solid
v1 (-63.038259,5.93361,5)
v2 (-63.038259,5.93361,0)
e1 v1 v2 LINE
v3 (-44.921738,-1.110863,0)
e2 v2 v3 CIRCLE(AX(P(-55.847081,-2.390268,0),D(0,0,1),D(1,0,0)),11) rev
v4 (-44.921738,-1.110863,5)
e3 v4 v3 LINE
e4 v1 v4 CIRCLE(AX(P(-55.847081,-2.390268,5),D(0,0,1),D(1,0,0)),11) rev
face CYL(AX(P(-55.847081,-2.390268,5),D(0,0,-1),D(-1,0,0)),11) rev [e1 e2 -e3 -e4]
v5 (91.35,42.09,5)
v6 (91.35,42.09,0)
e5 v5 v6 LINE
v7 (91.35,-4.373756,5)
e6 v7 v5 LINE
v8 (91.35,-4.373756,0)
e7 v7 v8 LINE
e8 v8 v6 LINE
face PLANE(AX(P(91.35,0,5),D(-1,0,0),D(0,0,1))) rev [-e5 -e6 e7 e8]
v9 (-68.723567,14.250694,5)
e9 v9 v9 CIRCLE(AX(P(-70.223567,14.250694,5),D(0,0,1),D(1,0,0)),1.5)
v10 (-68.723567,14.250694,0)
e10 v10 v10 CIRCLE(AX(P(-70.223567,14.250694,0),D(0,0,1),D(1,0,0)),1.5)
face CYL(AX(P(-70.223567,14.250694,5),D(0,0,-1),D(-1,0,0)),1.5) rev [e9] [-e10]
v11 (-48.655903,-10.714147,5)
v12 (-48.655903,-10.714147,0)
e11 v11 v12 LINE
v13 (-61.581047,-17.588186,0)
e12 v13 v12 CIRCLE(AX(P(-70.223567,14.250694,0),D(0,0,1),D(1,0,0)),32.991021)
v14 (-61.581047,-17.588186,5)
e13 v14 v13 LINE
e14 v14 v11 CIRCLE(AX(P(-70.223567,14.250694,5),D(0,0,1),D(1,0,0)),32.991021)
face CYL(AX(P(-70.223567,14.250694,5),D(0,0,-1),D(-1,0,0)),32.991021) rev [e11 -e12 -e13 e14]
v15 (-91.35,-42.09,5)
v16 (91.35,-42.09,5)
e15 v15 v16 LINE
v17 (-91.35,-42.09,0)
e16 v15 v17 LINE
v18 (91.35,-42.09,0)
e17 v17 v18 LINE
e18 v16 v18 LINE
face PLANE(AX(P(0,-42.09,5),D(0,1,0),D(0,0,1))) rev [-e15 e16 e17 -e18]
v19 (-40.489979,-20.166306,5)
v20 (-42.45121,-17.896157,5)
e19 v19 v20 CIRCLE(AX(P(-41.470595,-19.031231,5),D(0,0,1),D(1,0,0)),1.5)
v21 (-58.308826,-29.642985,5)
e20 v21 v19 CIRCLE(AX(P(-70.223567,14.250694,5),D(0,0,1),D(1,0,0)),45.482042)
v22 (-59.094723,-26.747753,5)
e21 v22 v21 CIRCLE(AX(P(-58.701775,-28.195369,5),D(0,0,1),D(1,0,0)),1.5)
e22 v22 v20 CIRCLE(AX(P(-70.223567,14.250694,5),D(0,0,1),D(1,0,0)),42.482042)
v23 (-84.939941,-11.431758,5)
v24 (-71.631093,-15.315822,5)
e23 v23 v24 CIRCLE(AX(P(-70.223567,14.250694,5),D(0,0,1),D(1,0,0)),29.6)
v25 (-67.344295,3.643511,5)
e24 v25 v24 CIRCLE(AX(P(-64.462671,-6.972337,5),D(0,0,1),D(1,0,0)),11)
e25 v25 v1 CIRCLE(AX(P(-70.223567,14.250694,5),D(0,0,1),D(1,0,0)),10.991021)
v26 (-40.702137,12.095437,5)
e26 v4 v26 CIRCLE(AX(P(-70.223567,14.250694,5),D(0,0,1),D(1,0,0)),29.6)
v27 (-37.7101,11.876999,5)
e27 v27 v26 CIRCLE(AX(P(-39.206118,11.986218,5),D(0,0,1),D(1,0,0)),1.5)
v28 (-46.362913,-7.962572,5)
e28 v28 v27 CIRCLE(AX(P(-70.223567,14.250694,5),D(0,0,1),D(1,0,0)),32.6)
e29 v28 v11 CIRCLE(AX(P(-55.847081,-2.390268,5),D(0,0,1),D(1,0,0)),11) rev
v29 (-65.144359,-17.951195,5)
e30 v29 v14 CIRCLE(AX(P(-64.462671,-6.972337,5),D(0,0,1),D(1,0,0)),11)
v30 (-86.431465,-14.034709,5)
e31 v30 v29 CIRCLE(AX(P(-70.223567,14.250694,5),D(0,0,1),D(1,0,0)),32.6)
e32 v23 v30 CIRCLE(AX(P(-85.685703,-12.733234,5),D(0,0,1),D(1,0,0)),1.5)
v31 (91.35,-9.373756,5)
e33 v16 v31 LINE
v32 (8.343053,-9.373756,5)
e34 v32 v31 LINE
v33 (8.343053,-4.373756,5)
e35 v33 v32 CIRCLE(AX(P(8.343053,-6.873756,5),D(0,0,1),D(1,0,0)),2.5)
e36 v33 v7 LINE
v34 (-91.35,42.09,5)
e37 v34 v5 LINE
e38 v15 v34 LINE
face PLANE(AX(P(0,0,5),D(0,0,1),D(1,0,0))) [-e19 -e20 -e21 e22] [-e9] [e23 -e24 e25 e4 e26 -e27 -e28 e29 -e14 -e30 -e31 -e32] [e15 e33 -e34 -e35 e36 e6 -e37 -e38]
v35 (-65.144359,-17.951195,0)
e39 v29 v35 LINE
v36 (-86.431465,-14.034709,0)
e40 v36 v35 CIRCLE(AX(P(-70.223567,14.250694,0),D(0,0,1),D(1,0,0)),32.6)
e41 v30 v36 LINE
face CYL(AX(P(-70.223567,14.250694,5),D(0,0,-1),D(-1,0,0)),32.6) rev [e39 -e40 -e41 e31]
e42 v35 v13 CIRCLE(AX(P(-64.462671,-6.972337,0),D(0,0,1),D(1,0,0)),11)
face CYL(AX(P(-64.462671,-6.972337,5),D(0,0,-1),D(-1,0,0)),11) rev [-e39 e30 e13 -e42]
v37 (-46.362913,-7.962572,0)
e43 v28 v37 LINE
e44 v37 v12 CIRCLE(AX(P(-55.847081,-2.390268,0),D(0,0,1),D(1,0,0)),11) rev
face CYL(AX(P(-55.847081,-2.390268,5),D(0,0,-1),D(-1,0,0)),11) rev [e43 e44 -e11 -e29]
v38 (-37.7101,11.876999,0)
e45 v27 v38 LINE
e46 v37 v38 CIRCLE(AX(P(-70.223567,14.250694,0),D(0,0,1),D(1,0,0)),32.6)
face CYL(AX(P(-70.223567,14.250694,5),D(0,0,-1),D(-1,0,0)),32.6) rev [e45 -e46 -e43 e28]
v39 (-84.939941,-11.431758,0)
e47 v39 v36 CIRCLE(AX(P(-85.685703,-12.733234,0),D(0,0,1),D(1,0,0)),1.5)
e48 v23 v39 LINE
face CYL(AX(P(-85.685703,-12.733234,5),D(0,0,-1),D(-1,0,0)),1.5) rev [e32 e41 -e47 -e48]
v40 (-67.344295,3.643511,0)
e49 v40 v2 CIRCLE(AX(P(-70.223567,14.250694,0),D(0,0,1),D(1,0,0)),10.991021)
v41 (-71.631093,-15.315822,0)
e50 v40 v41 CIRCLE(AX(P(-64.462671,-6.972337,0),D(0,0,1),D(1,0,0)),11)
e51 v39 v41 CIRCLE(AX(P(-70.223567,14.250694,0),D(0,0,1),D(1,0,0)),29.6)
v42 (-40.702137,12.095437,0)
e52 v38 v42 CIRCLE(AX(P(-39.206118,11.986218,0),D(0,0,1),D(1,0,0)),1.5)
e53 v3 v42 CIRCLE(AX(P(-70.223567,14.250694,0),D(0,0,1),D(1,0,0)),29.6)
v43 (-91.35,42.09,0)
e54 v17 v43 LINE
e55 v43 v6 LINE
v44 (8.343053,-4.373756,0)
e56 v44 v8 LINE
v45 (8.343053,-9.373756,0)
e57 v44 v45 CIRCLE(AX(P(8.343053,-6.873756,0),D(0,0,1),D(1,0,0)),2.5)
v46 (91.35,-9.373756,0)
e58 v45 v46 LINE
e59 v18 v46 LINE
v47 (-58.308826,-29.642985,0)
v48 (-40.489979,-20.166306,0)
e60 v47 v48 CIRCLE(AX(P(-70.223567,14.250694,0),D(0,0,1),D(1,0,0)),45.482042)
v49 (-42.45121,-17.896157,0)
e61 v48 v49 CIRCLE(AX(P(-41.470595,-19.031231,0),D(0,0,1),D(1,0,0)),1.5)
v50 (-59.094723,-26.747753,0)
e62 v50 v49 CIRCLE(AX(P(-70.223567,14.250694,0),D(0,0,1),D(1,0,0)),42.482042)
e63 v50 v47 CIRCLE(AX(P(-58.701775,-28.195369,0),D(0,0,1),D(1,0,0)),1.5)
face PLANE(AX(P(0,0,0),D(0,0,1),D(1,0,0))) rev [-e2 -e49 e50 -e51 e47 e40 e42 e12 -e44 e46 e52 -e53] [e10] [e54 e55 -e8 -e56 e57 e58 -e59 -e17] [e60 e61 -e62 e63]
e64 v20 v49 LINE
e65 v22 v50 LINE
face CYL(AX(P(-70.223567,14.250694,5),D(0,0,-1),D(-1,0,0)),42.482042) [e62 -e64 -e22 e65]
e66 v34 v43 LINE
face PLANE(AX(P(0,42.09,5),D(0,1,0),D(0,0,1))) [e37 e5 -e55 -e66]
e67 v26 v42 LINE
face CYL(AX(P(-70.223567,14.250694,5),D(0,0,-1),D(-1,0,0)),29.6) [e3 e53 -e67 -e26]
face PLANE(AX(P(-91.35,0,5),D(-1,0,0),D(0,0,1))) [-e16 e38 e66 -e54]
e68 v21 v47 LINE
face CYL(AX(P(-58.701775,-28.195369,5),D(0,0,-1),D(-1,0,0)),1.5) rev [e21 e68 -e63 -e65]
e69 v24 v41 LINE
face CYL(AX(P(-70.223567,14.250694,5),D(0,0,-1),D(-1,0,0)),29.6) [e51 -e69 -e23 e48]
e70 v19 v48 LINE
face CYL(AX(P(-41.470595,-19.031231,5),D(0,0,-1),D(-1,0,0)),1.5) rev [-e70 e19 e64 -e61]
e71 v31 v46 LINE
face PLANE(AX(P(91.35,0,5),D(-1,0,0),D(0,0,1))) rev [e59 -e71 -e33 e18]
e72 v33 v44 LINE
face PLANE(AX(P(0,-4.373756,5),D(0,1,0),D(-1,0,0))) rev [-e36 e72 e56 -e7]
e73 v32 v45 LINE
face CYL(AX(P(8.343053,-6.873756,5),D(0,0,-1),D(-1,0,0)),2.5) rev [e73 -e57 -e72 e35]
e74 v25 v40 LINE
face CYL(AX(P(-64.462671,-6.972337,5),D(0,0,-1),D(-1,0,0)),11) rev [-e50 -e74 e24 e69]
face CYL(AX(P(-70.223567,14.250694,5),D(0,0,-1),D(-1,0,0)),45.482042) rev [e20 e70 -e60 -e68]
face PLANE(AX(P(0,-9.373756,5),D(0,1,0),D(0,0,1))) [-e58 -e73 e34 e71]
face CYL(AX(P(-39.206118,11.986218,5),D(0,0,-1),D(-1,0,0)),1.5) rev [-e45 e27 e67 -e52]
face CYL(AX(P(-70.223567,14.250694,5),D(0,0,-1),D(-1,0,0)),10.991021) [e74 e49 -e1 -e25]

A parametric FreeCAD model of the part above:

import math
import FreeCAD as App
import Part
import Sketcher
from FreeCAD import Vector

doc = App.newDocument("Part")
body = doc.addObject("PartDesign::Body", "Body")

# Sketch on XY plane
sketch1 = body.newObject("Sketcher::SketchObject", "Sketch")
sketch1.AttachmentSupport = (doc.getObject("XY_Plane"), [""])
sketch1.MapMode = "FlatFace"
sketch1.addGeometry([
    Part.LineSegment(Vector(-91.35, 42.09, 0), Vector(-91.35, -42.09, 0)),  # 0
    Part.LineSegment(Vector(-91.35, -42.09, 0), Vector(91.35, -42.09, 0)),  # 1
    Part.LineSegment(Vector(91.35, -42.09, 0), Vector(91.35, -9.37, 0)),  # 2
    Part.LineSegment(Vector(91.35, -9.37, 0), Vector(8.34, -9.37, 0)),  # 3
    Part.ArcOfCircle(Part.Circle(Vector(8.34, -6.87, 0), Vector(0, 0, 1), 2.5), math.radians(90), math.radians(270)),  # 4
    Part.LineSegment(Vector(8.34, -4.37, 0), Vector(91.35, -4.37, 0)),  # 5
    Part.LineSegment(Vector(91.35, -4.37, 0), Vector(91.35, 42.09, 0)),  # 6
    Part.LineSegment(Vector(91.35, 42.09, 0), Vector(-91.35, 42.09, 0)),  # 7
    Part.ArcOfCircle(Part.Circle(Vector(-41.47, -19.03, 0), Vector(0, 0, 1), 1.5), math.radians(-49), math.radians(0)),  # 8
    Part.ArcOfCircle(Part.Circle(Vector(-70.22, 14.25, 0), Vector(0, 0, 1), 45.48), math.radians(-75), math.radians(-49)),  # 9
    Part.ArcOfCircle(Part.Circle(Vector(-58.7, -28.2, 0), Vector(0, 0, 1), 1.5), math.radians(105), math.radians(285)),  # 10
    Part.ArcOfCircle(Part.Circle(Vector(-70.22, 14.25, 0), Vector(0, 0, 1), 42.48), math.radians(-75), math.radians(-49)),  # 11
    Part.ArcOfCircle(Part.Circle(Vector(-41.47, -19.03, 0), Vector(0, 0, 1), 1.5), math.radians(0), math.radians(131)),  # 12
    Part.Circle(Vector(-70.22, 14.25, 0), Vector(0, 0, 1), 1.5),  # 13
    Part.ArcOfCircle(Part.Circle(Vector(-64.46, -6.97, 0), Vector(0, 0, 1), 11), math.radians(-93.55), math.radians(-74.81)),  # 14
    Part.ArcOfCircle(Part.Circle(Vector(-70.22, 14.25, 0), Vector(0, 0, 1), 32.6), math.radians(-120), math.radians(-81)),  # 15
    Part.ArcOfCircle(Part.Circle(Vector(-85.69, -12.73, 0), Vector(0, 0, 1), 1.5), math.radians(60), math.radians(240)),  # 16
    Part.ArcOfCircle(Part.Circle(Vector(-70.22, 14.25, 0), Vector(0, 0, 1), 29.6), math.radians(-120), math.radians(-93)),  # 17
    Part.ArcOfCircle(Part.Circle(Vector(-64.46, -6.97, 0), Vector(0, 0, 1), 11), math.radians(105), math.radians(229)),  # 18
    Part.ArcOfCircle(Part.Circle(Vector(-70.22, 14.25, 0), Vector(0, 0, 1), 10.99), math.radians(-75), math.radians(-49)),  # 19
    Part.ArcOfCircle(Part.Circle(Vector(-55.85, -2.39, 0), Vector(0, 0, 1), 11), math.radians(7), math.radians(131)),  # 20
    Part.ArcOfCircle(Part.Circle(Vector(-70.22, 14.25, 0), Vector(0, 0, 1), 29.6), math.radians(-31), math.radians(-4)),  # 21
    Part.ArcOfCircle(Part.Circle(Vector(-39.21, 11.99, 0), Vector(0, 0, 1), 1.5), math.radians(0), math.radians(176)),  # 22
    Part.ArcOfCircle(Part.Circle(Vector(-39.21, 11.99, 0), Vector(0, 0, 1), 1.5), math.radians(-4.18), math.radians(0)),  # 23
    Part.ArcOfCircle(Part.Circle(Vector(-70.22, 14.25, 0), Vector(0, 0, 1), 32.6), math.radians(-43), math.radians(-4)),  # 24
    Part.ArcOfCircle(Part.Circle(Vector(-55.85, -2.39, 0), Vector(0, 0, 1), 11), math.radians(-49.18), math.radians(-30.44)),  # 25
    Part.ArcOfCircle(Part.Circle(Vector(-70.22, 14.25, 0), Vector(0, 0, 1), 32.99), math.radians(-75), math.radians(-49)),  # 26
], False)
sketch1.addConstraint([
    Sketcher.Constraint("Coincident", 0, 2, 1, 1),
    Sketcher.Constraint("Coincident", 1, 2, 2, 1),
    Sketcher.Constraint("Coincident", 2, 2, 3, 1),
    Sketcher.Constraint("Tangent", 3, 2, 4, 2),
    Sketcher.Constraint("Tangent", 4, 1, 5, 1),
    Sketcher.Constraint("Coincident", 5, 2, 6, 1),
    Sketcher.Constraint("Coincident", 6, 2, 7, 1),
    Sketcher.Constraint("Coincident", 7, 2, 0, 1),
    Sketcher.Constraint("Tangent", 8, 1, 9, 2),
    Sketcher.Constraint("Tangent", 9, 1, 10, 2),
    Sketcher.Constraint("Tangent", 10, 1, 11, 1),
    Sketcher.Constraint("Tangent", 11, 2, 12, 2),
    Sketcher.Constraint("Tangent", 12, 1, 8, 2),
    Sketcher.Constraint("Coincident", 14, 1, 15, 2),
    Sketcher.Constraint("Tangent", 15, 1, 16, 2),
    Sketcher.Constraint("Tangent", 16, 1, 17, 1),
    Sketcher.Constraint("Coincident", 17, 2, 18, 2),
    Sketcher.Constraint("Tangent", 18, 1, 19, 1),
    Sketcher.Constraint("Tangent", 19, 2, 20, 2),
    Sketcher.Constraint("Coincident", 20, 1, 21, 1),
    Sketcher.Constraint("Tangent", 21, 2, 22, 2),
    Sketcher.Constraint("Tangent", 22, 1, 23, 2),
    Sketcher.Constraint("Tangent", 23, 1, 24, 2),
    Sketcher.Constraint("Coincident", 24, 1, 25, 2),
    Sketcher.Constraint("Tangent", 25, 1, 26, 2),
    Sketcher.Constraint("Tangent", 26, 1, 14, 2),
    Sketcher.Constraint("Vertical", 0),
    Sketcher.Constraint("Horizontal", 1),
    Sketcher.Constraint("Vertical", 2),
    Sketcher.Constraint("Horizontal", 3),
    Sketcher.Constraint("Horizontal", 5),
    Sketcher.Constraint("Vertical", 6),
    Sketcher.Constraint("Horizontal", 7),
    Sketcher.Constraint("Coincident", 11, 3, 9, 3),
    Sketcher.Constraint("Coincident", 13, 3, 9, 3),
    Sketcher.Constraint("Coincident", 15, 3, 9, 3),
    Sketcher.Constraint("Coincident", 17, 3, 9, 3),
    Sketcher.Constraint("Coincident", 18, 3, 14, 3),
    Sketcher.Constraint("Coincident", 19, 3, 9, 3),
    Sketcher.Constraint("Coincident", 21, 3, 9, 3),
    Sketcher.Constraint("Coincident", 24, 3, 9, 3),
    Sketcher.Constraint("Coincident", 25, 3, 20, 3),
    Sketcher.Constraint("Coincident", 26, 3, 9, 3),
    Sketcher.Constraint("Equal", 8, 10),
    Sketcher.Constraint("Equal", 12, 13),
    Sketcher.Constraint("Equal", 13, 16),
    Sketcher.Constraint("Equal", 14, 18),
    Sketcher.Constraint("Equal", 18, 20),
    Sketcher.Constraint("Equal", 17, 21),
    Sketcher.Constraint("Equal", 16, 22),
    Sketcher.Constraint("Equal", 22, 23),
    Sketcher.Constraint("Symmetric", 0, 2, 6, 2, -1, 1),
    Sketcher.Constraint("Horizontal", 8, 3, 12, 1),
    Sketcher.Constraint("Horizontal", 23, 3, 22, 1),
    Sketcher.Constraint("Vertical", 2, 2, 5, 2),
    Sketcher.Constraint("Diameter", 13, 3.0),
    Sketcher.Constraint("Radius", 14, 11.0),
    Sketcher.Constraint("Radius", 4, 2.5),
    Sketcher.Constraint("Radius", 15, 32.6),
    Sketcher.Constraint("DistanceX", 1, 1, 1, 2, 182.7),
    Sketcher.Constraint("DistanceY", 0, 2, 0, 1, 84.18),
    Sketcher.Constraint("Radius", 9, 45.482042),
    Sketcher.Constraint("Radius", 19, 10.991021),
    Sketcher.Constraint("DistanceY", -1, 1, 23, 1, 11.876999),
    Sketcher.Constraint("DistanceX", 23, 1, -1, 1, 37.7101),
    Sketcher.Constraint("DistanceX", 20, 3, 8, 1, 15.357102),
    Sketcher.Constraint("DistanceY", 18, 1, 19, 2, 2.290099),
    Sketcher.Constraint("DistanceX", 20, 1, 21, 2, 4.219601),
    Sketcher.Constraint("DistanceY", 20, 1, 21, 2, 13.2063),
    Sketcher.Constraint("DistanceX", 3, 2, 3, 1, 83.006947),
    Sketcher.Constraint("DistanceY", 2, 1, 2, 2, 32.716244),
    Sketcher.Constraint("DistanceY", 10, 3, -1, 1, 28.195369),
    Sketcher.Constraint("DistanceY", 15, 1, -1, 1, 14.034709),
])
pad1 = body.newObject("PartDesign::Pad", "Pad")
pad1.Profile = sketch1
pad1.Length = 5

doc.recompute()
